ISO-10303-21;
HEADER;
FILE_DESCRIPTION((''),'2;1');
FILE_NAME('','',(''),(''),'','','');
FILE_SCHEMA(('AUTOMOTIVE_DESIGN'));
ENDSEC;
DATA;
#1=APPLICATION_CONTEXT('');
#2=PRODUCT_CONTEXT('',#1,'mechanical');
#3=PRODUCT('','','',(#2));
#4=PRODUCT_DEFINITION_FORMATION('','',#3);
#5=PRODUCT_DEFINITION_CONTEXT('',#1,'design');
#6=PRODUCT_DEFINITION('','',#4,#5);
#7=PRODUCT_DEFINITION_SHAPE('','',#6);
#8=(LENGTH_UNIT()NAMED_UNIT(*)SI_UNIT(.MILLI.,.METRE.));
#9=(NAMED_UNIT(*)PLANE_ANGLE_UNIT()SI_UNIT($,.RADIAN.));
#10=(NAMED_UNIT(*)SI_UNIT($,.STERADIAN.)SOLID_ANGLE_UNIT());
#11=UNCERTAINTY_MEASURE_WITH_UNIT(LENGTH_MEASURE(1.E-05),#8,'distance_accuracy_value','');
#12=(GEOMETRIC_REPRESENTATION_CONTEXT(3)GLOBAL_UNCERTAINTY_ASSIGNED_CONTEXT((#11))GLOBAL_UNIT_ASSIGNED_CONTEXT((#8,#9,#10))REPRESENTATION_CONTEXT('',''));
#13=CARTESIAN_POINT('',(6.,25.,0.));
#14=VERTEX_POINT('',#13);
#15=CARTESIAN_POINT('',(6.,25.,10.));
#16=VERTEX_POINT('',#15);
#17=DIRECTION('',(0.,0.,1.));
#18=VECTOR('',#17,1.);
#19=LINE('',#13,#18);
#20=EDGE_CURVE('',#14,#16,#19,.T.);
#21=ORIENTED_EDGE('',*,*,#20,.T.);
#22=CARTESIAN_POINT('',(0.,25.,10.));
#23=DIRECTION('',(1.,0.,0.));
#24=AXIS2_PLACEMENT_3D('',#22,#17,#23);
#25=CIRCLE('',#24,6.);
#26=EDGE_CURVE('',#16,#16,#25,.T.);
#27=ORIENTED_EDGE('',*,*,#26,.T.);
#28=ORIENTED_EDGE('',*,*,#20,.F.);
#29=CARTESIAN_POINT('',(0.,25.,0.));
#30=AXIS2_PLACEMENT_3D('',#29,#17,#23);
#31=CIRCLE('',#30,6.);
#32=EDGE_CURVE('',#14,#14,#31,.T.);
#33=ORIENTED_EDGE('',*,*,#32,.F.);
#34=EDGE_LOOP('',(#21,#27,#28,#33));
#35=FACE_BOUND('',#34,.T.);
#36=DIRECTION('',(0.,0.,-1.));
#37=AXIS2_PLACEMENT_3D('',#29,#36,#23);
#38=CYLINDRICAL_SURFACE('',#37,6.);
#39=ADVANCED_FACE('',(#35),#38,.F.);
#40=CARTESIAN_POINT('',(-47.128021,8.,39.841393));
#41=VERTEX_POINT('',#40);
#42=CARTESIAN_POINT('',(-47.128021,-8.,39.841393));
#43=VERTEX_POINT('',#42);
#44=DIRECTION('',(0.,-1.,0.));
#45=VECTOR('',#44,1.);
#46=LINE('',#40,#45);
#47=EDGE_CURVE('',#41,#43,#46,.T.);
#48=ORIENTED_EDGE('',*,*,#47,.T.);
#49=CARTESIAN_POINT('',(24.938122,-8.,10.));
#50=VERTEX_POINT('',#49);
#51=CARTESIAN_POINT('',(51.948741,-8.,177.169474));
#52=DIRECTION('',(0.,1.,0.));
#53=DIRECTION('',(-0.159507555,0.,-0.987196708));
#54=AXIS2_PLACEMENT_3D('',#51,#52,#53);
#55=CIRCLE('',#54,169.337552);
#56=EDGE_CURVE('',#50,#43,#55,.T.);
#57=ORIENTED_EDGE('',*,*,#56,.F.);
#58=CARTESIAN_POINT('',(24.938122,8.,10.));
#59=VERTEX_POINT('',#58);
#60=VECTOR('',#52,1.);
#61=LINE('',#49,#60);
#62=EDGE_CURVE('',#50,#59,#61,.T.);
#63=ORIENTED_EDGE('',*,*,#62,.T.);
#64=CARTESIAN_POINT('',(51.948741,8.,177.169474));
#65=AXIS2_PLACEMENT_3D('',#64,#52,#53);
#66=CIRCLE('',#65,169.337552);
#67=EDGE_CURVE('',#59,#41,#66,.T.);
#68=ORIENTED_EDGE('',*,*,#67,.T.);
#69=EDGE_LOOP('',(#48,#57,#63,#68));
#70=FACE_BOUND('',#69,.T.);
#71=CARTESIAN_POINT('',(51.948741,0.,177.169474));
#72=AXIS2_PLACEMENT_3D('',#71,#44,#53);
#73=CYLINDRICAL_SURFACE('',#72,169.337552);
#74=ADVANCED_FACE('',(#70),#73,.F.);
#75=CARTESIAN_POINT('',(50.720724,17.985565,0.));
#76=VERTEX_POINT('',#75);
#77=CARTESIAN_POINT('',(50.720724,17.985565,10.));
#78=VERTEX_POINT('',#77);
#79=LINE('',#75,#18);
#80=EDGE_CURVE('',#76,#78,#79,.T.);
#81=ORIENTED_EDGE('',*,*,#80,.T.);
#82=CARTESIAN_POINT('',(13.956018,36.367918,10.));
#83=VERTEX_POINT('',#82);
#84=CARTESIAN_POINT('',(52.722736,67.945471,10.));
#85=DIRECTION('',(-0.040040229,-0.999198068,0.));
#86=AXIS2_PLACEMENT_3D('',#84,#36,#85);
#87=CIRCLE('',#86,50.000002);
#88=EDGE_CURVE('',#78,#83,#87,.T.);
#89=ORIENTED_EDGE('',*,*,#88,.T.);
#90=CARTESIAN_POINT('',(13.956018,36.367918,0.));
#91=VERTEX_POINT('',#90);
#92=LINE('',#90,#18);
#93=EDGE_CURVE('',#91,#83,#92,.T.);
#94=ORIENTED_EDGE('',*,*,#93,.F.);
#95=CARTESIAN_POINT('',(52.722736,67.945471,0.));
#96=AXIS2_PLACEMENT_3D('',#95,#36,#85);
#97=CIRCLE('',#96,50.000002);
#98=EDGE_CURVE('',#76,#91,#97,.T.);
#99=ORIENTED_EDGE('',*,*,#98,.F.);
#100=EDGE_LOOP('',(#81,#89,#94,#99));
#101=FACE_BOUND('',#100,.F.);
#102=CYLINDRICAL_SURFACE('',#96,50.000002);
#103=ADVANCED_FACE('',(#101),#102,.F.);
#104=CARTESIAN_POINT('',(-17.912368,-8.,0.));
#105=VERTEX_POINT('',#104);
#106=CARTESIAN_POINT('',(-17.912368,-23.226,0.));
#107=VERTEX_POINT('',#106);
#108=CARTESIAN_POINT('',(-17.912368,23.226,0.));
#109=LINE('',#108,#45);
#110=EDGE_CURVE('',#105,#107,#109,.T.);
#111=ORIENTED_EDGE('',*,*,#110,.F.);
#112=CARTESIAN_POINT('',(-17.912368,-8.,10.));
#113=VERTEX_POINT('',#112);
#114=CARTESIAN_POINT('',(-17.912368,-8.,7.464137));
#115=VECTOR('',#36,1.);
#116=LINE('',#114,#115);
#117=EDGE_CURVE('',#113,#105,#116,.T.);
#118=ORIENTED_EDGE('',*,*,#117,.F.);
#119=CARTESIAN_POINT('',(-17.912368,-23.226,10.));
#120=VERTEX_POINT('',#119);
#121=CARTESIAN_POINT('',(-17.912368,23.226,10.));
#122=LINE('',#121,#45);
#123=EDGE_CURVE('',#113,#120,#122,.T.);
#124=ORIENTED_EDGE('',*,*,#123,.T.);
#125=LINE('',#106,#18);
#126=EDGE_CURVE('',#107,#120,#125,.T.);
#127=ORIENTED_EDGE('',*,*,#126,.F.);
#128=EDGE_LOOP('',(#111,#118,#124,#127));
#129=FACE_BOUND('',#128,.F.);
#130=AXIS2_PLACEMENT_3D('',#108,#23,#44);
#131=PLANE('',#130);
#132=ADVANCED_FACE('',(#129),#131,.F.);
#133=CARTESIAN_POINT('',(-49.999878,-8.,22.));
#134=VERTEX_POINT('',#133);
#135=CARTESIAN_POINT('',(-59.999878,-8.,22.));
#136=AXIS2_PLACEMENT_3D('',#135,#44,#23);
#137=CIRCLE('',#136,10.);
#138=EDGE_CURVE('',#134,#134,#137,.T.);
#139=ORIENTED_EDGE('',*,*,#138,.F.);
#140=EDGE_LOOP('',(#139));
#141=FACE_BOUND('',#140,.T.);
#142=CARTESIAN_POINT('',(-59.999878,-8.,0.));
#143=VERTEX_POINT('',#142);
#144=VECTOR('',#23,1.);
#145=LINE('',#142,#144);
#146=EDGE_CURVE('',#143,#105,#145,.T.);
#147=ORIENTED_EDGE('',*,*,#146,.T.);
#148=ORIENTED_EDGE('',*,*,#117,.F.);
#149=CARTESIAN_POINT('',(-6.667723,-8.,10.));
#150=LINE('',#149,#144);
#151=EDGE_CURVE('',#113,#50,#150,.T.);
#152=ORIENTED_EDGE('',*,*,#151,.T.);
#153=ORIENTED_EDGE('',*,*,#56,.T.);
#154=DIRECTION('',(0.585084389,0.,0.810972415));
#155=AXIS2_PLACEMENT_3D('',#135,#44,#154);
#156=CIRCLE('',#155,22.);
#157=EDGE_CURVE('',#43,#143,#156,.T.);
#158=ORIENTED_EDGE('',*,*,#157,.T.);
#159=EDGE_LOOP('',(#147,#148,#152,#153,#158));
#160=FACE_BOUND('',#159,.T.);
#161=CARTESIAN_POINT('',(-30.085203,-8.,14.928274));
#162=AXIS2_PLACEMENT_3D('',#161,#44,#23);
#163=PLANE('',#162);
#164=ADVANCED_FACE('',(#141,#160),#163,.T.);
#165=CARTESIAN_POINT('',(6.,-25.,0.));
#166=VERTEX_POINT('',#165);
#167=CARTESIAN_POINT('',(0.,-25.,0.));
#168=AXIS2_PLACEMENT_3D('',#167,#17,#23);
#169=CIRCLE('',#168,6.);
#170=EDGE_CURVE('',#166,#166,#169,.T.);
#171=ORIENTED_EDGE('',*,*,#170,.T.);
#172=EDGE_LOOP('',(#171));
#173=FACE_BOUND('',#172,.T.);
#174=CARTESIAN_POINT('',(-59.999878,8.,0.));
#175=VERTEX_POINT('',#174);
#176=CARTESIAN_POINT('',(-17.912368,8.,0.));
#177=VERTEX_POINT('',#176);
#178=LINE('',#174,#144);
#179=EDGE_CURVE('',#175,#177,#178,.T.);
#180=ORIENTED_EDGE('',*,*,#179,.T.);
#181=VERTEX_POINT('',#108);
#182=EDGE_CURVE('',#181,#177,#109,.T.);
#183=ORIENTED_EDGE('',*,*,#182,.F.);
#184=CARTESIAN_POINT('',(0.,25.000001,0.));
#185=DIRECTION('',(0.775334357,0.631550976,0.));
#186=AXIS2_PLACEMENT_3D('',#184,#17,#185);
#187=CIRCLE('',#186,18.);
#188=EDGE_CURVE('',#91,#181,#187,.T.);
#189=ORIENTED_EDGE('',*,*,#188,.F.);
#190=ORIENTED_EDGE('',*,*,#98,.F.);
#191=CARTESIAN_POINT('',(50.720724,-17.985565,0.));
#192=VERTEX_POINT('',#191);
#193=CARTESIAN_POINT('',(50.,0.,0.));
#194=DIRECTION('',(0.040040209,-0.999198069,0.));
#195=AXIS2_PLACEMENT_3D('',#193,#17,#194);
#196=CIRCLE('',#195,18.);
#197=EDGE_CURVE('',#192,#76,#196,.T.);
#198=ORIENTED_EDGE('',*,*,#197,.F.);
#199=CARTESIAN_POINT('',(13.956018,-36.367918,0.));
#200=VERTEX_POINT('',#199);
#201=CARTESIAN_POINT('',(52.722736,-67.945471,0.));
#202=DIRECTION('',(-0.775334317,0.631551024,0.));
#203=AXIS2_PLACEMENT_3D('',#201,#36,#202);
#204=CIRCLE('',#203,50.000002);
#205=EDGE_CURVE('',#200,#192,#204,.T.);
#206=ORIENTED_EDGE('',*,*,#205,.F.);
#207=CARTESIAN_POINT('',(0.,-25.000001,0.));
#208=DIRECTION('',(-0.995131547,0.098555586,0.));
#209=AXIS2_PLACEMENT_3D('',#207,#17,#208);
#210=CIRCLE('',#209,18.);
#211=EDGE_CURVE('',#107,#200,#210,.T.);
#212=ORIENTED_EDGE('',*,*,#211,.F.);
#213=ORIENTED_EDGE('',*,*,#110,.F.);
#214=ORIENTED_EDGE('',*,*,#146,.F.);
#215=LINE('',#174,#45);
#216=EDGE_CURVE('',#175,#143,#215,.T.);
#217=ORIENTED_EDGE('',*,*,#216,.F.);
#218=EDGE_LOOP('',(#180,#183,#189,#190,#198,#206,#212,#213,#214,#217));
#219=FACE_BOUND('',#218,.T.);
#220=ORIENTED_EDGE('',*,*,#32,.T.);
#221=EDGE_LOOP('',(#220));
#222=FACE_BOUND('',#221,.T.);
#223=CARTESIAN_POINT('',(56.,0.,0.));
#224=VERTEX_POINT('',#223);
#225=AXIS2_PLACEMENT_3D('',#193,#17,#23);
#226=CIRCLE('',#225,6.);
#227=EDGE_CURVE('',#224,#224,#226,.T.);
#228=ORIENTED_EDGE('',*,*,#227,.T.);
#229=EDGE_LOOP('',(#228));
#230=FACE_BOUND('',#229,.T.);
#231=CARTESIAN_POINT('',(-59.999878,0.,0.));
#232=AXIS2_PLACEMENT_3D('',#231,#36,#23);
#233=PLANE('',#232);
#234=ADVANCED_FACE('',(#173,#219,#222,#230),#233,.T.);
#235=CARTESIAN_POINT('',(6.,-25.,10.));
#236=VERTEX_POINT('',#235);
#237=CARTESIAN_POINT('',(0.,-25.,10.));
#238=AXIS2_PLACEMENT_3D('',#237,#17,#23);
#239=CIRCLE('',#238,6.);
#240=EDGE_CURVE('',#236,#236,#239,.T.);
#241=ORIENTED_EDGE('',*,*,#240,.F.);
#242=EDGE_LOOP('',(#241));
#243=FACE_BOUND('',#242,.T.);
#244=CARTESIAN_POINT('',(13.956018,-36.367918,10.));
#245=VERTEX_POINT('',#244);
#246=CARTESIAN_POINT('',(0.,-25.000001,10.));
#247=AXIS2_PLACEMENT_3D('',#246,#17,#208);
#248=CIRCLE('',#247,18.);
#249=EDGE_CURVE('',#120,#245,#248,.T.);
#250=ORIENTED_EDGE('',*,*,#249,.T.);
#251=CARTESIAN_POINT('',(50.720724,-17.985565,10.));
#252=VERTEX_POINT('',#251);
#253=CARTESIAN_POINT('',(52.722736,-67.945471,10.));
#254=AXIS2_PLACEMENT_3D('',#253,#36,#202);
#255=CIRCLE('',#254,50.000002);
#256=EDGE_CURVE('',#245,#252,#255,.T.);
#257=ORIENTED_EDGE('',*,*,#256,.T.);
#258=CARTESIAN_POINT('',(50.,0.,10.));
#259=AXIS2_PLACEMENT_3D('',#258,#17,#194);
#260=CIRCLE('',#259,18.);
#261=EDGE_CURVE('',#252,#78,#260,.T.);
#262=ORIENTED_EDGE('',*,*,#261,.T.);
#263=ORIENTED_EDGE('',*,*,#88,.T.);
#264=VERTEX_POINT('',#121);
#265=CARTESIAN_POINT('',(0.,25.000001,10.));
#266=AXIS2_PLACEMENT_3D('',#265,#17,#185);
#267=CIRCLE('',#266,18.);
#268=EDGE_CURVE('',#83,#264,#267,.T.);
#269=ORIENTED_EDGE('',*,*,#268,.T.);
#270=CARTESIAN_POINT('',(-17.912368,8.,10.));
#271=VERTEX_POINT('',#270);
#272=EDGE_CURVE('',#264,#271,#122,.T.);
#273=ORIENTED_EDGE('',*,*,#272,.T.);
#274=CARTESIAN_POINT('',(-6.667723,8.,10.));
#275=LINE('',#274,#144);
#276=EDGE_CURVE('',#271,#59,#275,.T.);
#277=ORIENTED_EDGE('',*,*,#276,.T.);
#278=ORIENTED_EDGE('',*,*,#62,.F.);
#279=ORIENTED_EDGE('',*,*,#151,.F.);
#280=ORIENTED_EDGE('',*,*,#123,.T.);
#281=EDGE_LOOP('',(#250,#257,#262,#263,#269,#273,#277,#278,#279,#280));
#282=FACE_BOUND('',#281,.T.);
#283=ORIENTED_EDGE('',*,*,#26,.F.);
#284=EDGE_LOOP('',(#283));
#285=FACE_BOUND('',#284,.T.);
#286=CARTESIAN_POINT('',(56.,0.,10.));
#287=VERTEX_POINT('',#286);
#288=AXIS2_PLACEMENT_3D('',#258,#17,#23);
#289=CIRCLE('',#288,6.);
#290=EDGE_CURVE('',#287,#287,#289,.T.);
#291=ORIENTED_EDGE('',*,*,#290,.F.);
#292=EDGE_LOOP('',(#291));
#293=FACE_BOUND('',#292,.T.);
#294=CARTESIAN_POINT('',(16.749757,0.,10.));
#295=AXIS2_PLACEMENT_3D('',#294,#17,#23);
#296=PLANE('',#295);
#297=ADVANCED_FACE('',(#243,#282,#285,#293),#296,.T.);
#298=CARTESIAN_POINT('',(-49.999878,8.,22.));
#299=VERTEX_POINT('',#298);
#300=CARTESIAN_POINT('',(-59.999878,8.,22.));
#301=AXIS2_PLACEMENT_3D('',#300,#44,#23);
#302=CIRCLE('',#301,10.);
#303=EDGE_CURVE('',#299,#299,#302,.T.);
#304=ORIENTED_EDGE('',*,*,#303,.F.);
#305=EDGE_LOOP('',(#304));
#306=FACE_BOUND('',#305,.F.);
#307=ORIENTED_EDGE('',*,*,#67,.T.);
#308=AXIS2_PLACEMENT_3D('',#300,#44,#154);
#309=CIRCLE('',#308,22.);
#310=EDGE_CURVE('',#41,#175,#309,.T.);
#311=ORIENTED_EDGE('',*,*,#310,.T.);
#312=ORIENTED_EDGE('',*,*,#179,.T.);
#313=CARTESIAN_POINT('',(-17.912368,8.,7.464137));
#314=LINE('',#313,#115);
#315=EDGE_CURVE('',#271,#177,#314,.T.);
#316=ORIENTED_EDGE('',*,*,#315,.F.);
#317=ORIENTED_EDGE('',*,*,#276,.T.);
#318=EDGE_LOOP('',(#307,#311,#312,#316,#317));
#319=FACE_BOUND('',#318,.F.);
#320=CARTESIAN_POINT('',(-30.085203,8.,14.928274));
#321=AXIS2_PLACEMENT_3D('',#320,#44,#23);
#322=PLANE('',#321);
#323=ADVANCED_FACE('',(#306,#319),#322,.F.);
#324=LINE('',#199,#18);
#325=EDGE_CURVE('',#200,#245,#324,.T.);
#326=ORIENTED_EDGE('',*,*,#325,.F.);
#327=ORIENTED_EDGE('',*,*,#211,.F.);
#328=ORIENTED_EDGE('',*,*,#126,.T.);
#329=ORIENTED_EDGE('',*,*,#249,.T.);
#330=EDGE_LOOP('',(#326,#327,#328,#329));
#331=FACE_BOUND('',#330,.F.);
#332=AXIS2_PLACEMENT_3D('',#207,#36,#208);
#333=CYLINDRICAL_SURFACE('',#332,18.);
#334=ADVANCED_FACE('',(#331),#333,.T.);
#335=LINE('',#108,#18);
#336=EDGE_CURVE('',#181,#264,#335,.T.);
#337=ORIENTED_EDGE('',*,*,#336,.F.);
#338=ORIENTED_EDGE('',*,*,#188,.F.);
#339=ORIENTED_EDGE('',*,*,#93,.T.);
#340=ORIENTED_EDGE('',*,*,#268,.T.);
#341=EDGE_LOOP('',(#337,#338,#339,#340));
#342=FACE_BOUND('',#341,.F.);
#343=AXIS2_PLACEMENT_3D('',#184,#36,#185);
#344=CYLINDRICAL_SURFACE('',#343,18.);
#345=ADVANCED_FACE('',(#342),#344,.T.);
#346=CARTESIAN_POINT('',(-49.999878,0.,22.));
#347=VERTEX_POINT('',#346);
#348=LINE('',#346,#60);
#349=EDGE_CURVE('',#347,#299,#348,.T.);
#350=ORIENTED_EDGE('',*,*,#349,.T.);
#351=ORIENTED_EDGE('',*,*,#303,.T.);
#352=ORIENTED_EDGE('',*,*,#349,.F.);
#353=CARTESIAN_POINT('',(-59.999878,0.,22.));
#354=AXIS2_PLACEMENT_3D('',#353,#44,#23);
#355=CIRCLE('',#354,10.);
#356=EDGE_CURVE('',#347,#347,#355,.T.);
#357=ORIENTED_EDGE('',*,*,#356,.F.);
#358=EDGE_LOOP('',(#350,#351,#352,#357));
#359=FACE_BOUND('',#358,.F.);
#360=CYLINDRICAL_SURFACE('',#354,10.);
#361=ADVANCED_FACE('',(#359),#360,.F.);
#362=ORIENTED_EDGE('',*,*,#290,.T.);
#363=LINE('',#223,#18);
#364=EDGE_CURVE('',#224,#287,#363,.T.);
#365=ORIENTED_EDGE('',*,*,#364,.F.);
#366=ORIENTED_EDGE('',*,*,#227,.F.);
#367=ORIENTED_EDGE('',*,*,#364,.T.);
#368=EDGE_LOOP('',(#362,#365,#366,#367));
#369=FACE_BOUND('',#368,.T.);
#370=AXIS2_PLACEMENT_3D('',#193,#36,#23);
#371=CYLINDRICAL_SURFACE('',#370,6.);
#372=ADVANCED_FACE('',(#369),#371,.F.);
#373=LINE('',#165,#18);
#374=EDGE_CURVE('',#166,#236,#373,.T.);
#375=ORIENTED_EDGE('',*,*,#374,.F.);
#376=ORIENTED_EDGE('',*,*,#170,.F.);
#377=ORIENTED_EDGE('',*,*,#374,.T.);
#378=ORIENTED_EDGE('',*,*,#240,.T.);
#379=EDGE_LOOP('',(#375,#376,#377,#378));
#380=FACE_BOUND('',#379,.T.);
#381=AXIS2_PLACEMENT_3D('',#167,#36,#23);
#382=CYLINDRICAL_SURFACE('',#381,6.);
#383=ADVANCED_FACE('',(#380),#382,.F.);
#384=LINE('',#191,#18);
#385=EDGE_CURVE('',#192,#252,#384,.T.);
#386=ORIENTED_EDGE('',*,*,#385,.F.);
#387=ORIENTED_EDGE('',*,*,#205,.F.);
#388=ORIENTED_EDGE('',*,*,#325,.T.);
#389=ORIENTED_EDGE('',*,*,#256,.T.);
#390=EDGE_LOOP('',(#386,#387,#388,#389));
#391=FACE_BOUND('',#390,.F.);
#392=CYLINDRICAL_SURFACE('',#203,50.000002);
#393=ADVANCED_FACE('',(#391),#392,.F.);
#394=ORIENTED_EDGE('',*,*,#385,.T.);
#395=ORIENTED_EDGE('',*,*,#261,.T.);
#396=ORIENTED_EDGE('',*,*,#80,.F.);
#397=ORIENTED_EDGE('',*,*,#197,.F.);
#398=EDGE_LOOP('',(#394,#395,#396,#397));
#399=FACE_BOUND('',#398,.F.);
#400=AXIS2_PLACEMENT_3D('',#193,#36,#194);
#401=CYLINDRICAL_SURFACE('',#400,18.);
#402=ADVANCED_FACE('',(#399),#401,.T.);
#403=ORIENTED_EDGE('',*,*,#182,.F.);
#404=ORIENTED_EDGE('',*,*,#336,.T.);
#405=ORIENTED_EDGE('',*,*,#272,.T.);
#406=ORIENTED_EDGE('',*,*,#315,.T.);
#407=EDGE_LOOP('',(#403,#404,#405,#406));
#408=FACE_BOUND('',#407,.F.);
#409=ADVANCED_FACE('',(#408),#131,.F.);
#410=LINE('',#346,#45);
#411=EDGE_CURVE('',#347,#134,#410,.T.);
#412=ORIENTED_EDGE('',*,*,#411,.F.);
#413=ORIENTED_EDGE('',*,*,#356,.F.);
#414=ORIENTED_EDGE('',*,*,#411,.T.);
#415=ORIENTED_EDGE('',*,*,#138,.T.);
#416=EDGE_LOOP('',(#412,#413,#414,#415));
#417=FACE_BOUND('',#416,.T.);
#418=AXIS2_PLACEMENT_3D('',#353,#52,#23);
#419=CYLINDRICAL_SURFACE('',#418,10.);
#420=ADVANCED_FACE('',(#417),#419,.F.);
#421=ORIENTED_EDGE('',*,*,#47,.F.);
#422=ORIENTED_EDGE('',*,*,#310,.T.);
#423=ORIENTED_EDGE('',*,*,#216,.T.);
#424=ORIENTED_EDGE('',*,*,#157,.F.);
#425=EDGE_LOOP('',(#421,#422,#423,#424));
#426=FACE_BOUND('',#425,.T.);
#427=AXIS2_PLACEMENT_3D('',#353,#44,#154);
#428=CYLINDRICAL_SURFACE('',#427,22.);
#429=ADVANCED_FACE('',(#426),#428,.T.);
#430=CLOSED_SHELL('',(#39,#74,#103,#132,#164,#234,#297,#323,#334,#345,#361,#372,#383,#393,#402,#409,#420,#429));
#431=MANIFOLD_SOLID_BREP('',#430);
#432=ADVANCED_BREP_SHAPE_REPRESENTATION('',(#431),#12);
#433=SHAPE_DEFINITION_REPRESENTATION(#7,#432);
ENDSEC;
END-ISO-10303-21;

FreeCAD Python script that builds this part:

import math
import FreeCAD as App
import Part
import Sketcher

doc = App.newDocument("Part")
body = doc.addObject("PartDesign::Body", "Body")

sketch1 = body.newObject("Sketcher::SketchObject", "Sketch")
sketch1.AttachmentSupport = (doc.getObject("XY_Plane"), [""])
sketch1.MapMode = "FlatFace"
sketch1.addGeometry(Part.ArcOfCircle(Part.Circle(App.Vector(52.722736, 67.945471, 0), App.Vector(0, 0, 1), 50.000002), math.radians(-140.835353), math.radians(-92.29475)), False)
sketch1.addGeometry(Part.ArcOfCircle(Part.Circle(App.Vector(0, 25.000001, 0), App.Vector(0, 0, 1), 18), math.radians(39.164644), math.radians(185.656001)), False)
sketch1.addGeometry(Part.LineSegment(App.Vector(-17.912368, 23.226, 0), App.Vector(-17.912368, -23.226, 0)), False)
sketch1.addGeometry(Part.ArcOfCircle(Part.Circle(App.Vector(0, -25.000001, 0), App.Vector(0, 0, 1), 18), math.radians(174.343999), math.radians(320.835356)), False)
sketch1.addGeometry(Part.ArcOfCircle(Part.Circle(App.Vector(52.722736, -67.945471, 0), App.Vector(0, 0, 1), 50.000002), math.radians(92.29475), math.radians(140.835353)), False)
sketch1.addGeometry(Part.ArcOfCircle(Part.Circle(App.Vector(50, 0, 0), App.Vector(0, 0, 1), 18), math.radians(-87.705252), math.radians(87.705252)), False)
sketch1.addGeometry(Part.Circle(App.Vector(0, -25, 0), App.Vector(0, 0, 1), 6), False)
sketch1.addGeometry(Part.Circle(App.Vector(0, 25, 0), App.Vector(0, 0, 1), 6), False)
sketch1.addGeometry(Part.Circle(App.Vector(50, 0, 0), App.Vector(0, 0, 1), 6), False)
sketch1.addConstraint(Sketcher.Constraint("Tangent", 0, 1, 1, 1))
sketch1.addConstraint(Sketcher.Constraint("Coincident", 1, 2, 2, 1))
sketch1.addConstraint(Sketcher.Constraint("Coincident", 2, 2, 3, 1))
sketch1.addConstraint(Sketcher.Constraint("Tangent", 3, 2, 4, 2))
sketch1.addConstraint(Sketcher.Constraint("Tangent", 4, 1, 5, 1))
sketch1.addConstraint(Sketcher.Constraint("Tangent", 5, 2, 0, 2))
sketch1.addConstraint(Sketcher.Constraint("Vertical", 2))
sketch1.addConstraint(Sketcher.Constraint("Coincident", 6, 3, 3, 3))
sketch1.addConstraint(Sketcher.Constraint("Coincident", 7, 3, 1, 3))
sketch1.addConstraint(Sketcher.Constraint("Coincident", 8, 3, 5, 3))
sketch1.addConstraint(Sketcher.Constraint("Equal", 1, 3))
sketch1.addConstraint(Sketcher.Constraint("Equal", 0, 4))
sketch1.addConstraint(Sketcher.Constraint("Equal", 3, 5))
sketch1.addConstraint(Sketcher.Constraint("Equal", 6, 7))
sketch1.addConstraint(Sketcher.Constraint("Equal", 7, 8))
sketch1.addConstraint(Sketcher.Constraint("Symmetric", 1, 3, 3, 3, -1, 1))
sketch1.addConstraint(Sketcher.Constraint("Symmetric", 0, 3, 4, 3, -1))
sketch1.addConstraint(Sketcher.Constraint("Diameter", 6, 12.0))
sketch1.addConstraint(Sketcher.Constraint("Radius", 1, 18.0))
sketch1.addConstraint(Sketcher.Constraint("DistanceY", -1, 1, 1, 3, 25.000001))
sketch1.addConstraint(Sketcher.Constraint("DistanceX", -1, 1, 5, 3, 50.0))
sketch1.addConstraint(Sketcher.Constraint("DistanceY", 2, 2, 2, 1, 46.452))
sketch1.addConstraint(Sketcher.Constraint("Radius", 0, 50.000002))
pad1 = body.newObject("PartDesign::Pad", "Pad")
pad1.Profile = sketch1
pad1.Length = 10

sketch2 = body.newObject("Sketcher::SketchObject", "Sketch001")
sketch2.AttachmentSupport = (doc.getObject("XZ_Plane"), [""])
sketch2.MapMode = "FlatFace"
sketch2.addGeometry(Part.ArcOfCircle(Part.Circle(App.Vector(51.948741, 177.169474, 0), App.Vector(0, 0, 1), 169.337552), math.radians(-125.808953), math.radians(-99.178314)), False)
sketch2.addGeometry(Part.ArcOfCircle(Part.Circle(App.Vector(-59.999878, 22, 0), App.Vector(0, 0, 1), 22), math.radians(54.191048), math.radians(269.999999)), False)
sketch2.addGeometry(Part.LineSegment(App.Vector(-59.999878, 0, 0), App.Vector(24.938122, 0, 0)), False)
sketch2.addGeometry(Part.LineSegment(App.Vector(24.938122, 0, 0), App.Vector(24.938122, 10, 0)), False)
sketch2.addGeometry(Part.Circle(App.Vector(-59.999878, 22, 0), App.Vector(0, 0, 1), 10), False)
sketch2.addConstraint(Sketcher.Constraint("Tangent", 0, 1, 1, 1))
sketch2.addConstraint(Sketcher.Constraint("Tangent", 1, 2, 2, 1))
sketch2.addConstraint(Sketcher.Constraint("Coincident", 2, 2, 3, 1))
sketch2.addConstraint(Sketcher.Constraint("Coincident", 3, 2, 0, 2))
sketch2.addConstraint(Sketcher.Constraint("Horizontal", 2))
sketch2.addConstraint(Sketcher.Constraint("Vertical", 3))
sketch2.addConstraint(Sketcher.Constraint("Coincident", 4, 3, 1, 3))
sketch2.addConstraint(Sketcher.Constraint("PointOnObject", 1, 2, -1))
sketch2.addConstraint(Sketcher.Constraint("Diameter", 4, 20.0))
sketch2.addConstraint(Sketcher.Constraint("Radius", 1, 22.0))
sketch2.addConstraint(Sketcher.Constraint("DistanceY", 3, 1, 3, 2, 10.0))
sketch2.addConstraint(Sketcher.Constraint("DistanceX", 2, 1, 2, 2, 84.938))
sketch2.addConstraint(Sketcher.Constraint("Radius", 0, 169.337552))
sketch2.addConstraint(Sketcher.Constraint("DistanceX", -1, 1, 0, 3, 51.948741))
pad2 = body.newObject("PartDesign::Pad", "Pad001")
pad2.Profile = sketch2
pad2.Type = "TwoLengths"
pad2.Length = 8
pad2.Length2 = 8

doc.recompute()
